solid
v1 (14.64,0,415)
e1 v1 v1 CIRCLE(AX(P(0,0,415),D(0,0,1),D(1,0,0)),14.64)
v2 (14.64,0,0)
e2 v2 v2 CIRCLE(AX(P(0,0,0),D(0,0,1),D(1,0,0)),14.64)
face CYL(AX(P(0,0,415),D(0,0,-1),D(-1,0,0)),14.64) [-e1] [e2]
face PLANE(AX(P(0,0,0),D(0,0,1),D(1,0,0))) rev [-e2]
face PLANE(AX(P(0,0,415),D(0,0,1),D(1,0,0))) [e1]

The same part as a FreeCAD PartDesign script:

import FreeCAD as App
import Part
import Sketcher

doc = App.newDocument("Part")
body = doc.addObject("PartDesign::Body", "Body")

sketch1 = body.newObject("Sketcher::SketchObject", "Sketch")
sketch1.AttachmentSupport = (doc.getObject("XY_Plane"), [""])
sketch1.MapMode = "FlatFace"
sketch1.addGeometry(Part.Circle(App.Vector(0, 0, 0), App.Vector(0, 0, 1), 14.64), False)
sketch1.addConstraint([
    Sketcher.Constraint("Coincident", 0, 3, -1, 1),
    Sketcher.Constraint("Diameter", 0, 29.28),
])
pad1 = body.newObject("PartDesign::Pad", "Pad")
pad1.Profile = sketch1
pad1.Length = 415

doc.recompute()
